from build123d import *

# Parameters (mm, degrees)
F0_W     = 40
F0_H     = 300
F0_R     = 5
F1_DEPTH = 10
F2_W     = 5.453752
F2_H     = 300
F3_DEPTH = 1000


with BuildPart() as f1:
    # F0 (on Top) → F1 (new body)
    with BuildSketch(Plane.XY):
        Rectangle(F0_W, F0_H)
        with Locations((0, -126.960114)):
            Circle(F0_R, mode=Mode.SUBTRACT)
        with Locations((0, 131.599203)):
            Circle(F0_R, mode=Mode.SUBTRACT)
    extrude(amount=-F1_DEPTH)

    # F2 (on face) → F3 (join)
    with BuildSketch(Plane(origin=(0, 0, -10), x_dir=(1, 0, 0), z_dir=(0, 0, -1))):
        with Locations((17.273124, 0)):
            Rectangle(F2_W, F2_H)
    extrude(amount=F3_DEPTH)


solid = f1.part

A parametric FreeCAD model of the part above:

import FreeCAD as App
import Part
import Sketcher
from FreeCAD import Vector

doc = App.newDocument("Part")
body = doc.addObject("PartDesign::Body", "Body")

sketch1 = body.newObject("Sketcher::SketchObject", "Sketch")
sketch1.AttachmentSupport = (doc.getObject("XY_Plane"), [""])
sketch1.MapMode = "FlatFace"
sketch1.addGeometry(Part.LineSegment(Vector(-20, 150, 0), Vector(-20, -150, 0)), False)
sketch1.addGeometry(Part.LineSegment(Vector(-20, -150, 0), Vector(20, -150, 0)), False)
sketch1.addGeometry(Part.LineSegment(Vector(20, -150, 0), Vector(20, 150, 0)), False)
sketch1.addGeometry(Part.LineSegment(Vector(20, 150, 0), Vector(-20, 150, 0)), False)
sketch1.addGeometry(Part.Circle(Vector(0, -126.960114, 0), Vector(0, 0, 1), 5), False)
sketch1.addGeometry(Part.Circle(Vector(0, 131.599203, 0), Vector(0, 0, 1), 5), False)
sketch1.addConstraint(Sketcher.Constraint("Coincident", 0, 2, 1, 1))
sketch1.addConstraint(Sketcher.Constraint("Coincident", 1, 2, 2, 1))
sketch1.addConstraint(Sketcher.Constraint("Coincident", 2, 2, 3, 1))
sketch1.addConstraint(Sketcher.Constraint("Coincident", 3, 2, 0, 1))
sketch1.addConstraint(Sketcher.Constraint("Vertical", 0))
sketch1.addConstraint(Sketcher.Constraint("Horizontal", 1))
sketch1.addConstraint(Sketcher.Constraint("Vertical", 2))
sketch1.addConstraint(Sketcher.Constraint("Horizontal", 3))
sketch1.addConstraint(Sketcher.Constraint("Equal", 4, 5))
sketch1.addConstraint(Sketcher.Constraint("Symmetric", 0, 2, 2, 2, -1, 1))
sketch1.addConstraint(Sketcher.Constraint("PointOnObject", 4, 3, -2))
sketch1.addConstraint(Sketcher.Constraint("PointOnObject", 5, 3, -2))
sketch1.addConstraint(Sketcher.Constraint("Diameter", 4, 10.0))
sketch1.addConstraint(Sketcher.Constraint("DistanceX", 1, 1, 1, 2, 40.0))
sketch1.addConstraint(Sketcher.Constraint("DistanceY", 0, 2, 0, 1, 300.0))
sketch1.addConstraint(Sketcher.Constraint("DistanceY", 4, 3, -1, 1, 126.960114))
sketch1.addConstraint(Sketcher.Constraint("DistanceY", -1, 1, 5, 3, 131.599203))
pad1 = body.newObject("PartDesign::Pad", "Pad")
pad1.Profile = sketch1
pad1.Length = 10
pad1.Reversed = True

sketch2 = body.newObject("Sketcher::SketchObject", "Sketch001")
sketch2.AttachmentSupport = (doc.getObject("XY_Plane"), [""])
sketch2.MapMode = "FlatFace"
sketch2.AttachmentOffset = App.Placement(Vector(0, 0, -10), App.Rotation())
sketch2.addGeometry(Part.LineSegment(Vector(14.546248, -150, 0), Vector(14.546248, 150, 0)), False)
sketch2.addGeometry(Part.LineSegment(Vector(14.546248, 150, 0), Vector(20, 150, 0)), False)
sketch2.addGeometry(Part.LineSegment(Vector(20, 150, 0), Vector(20, -150, 0)), False)
sketch2.addGeometry(Part.LineSegment(Vector(20, -150, 0), Vector(14.546248, -150, 0)), False)
sketch2.addConstraint(Sketcher.Constraint("Coincident", 0, 2, 1, 1))
sketch2.addConstraint(Sketcher.Constraint("Coincident", 1, 2, 2, 1))
sketch2.addConstraint(Sketcher.Constraint("Coincident", 2, 2, 3, 1))
sketch2.addConstraint(Sketcher.Constraint("Coincident", 3, 2, 0, 1))
sketch2.addConstraint(Sketcher.Constraint("Vertical", 0))
sketch2.addConstraint(Sketcher.Constraint("Horizontal", 1))
sketch2.addConstraint(Sketcher.Constraint("Vertical", 2))
sketch2.addConstraint(Sketcher.Constraint("Horizontal", 3))
sketch2.addConstraint(Sketcher.Constraint("DistanceY", 0, 1, 0, 2, 300.0))
sketch2.addConstraint(Sketcher.Constraint("DistanceY", -1, 1, 0, 2, 150.0))
sketch2.addConstraint(Sketcher.Constraint("DistanceX", -1, 1, 1, 2, 20.0))
sketch2.addConstraint(Sketcher.Constraint("DistanceX", 1, 1, 1, 2, 5.453752))
pad2 = body.newObject("PartDesign::Pad", "Pad001")
pad2.Profile = sketch2
pad2.Length = 1000
pad2.Reversed = True

doc.recompute()
